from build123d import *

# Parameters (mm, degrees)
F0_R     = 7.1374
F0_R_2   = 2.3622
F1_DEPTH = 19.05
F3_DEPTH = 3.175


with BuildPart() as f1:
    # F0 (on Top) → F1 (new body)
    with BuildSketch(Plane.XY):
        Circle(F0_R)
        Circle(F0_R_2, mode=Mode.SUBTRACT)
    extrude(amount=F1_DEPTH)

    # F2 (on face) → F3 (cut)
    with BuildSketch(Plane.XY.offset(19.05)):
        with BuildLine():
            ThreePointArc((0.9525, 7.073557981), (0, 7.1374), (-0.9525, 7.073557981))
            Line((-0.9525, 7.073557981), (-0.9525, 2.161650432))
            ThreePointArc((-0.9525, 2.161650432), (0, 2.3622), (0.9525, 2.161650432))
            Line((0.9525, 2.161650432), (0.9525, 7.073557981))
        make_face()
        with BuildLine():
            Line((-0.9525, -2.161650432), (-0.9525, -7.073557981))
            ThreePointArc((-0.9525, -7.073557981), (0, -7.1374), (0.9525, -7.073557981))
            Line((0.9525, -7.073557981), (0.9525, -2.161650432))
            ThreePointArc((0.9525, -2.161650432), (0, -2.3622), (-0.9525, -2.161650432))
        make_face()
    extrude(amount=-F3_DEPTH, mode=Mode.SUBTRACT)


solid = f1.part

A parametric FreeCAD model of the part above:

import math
import FreeCAD as App
import Part
import Sketcher
from FreeCAD import Vector
Q = App.Units.Quantity

doc = App.newDocument("Part")
params = doc.addObject("Spreadsheet::Sheet", "Params")
for row, (alias, value) in enumerate([
    ("sketch1_diameter", "0.562 in"),
    ("sketch1_diameter2", "0.186 in"),
    ("pad1_length", "0.75 in"),
    ("sketch2_radius", "0.281 in"),
    ("sketch2_radius2", "0.093 in"),
    ("pocket1_length", "0.125 in"),
], start=1):
    params.set(f"A{row}", alias)
    params.set(f"B{row}", "=" + value)
    params.setAlias(f"B{row}", alias)

body = doc.addObject("PartDesign::Body", "Body")

# Sketch on XY plane
sketch1 = body.newObject("Sketcher::SketchObject", "Sketch")
sketch1.AttachmentSupport = (doc.getObject("XY_Plane"), [""])
sketch1.MapMode = "FlatFace"
sketch1.addGeometry([
    Part.Circle(Vector(0, 0, 0), Vector(0, 0, 1), 7.1),
    Part.Circle(Vector(0, 0, 0), Vector(0, 0, 1), 2.4),
], False)
sketch1.addConstraint([
    Sketcher.Constraint("Coincident", 0, 3, -1, 1),
    Sketcher.Constraint("Coincident", 1, 3, -1, 1),
    Sketcher.Constraint("Diameter", 0, Q("0.562 in")),
    Sketcher.Constraint("Diameter", 1, Q("0.186 in")),
])
sketch1.setExpression("Constraints[2]", "Params.sketch1_diameter")
sketch1.setExpression("Constraints[3]", "Params.sketch1_diameter2")
pad1 = body.newObject("PartDesign::Pad", "Pad")
pad1.Profile = sketch1
pad1.setExpression("Length", "Params.pad1_length")

# Sketch on XY plane
sketch2 = body.newObject("Sketcher::SketchObject", "Sketch001")
sketch2.AttachmentSupport = (doc.getObject("XY_Plane"), [""])
sketch2.MapMode = "FlatFace"
sketch2.AttachmentOffset = App.Placement(Vector(0, 0, 0.75 * 25.4), App.Rotation())
sketch2.addGeometry([
    Part.ArcOfCircle(Part.Circle(Vector(0, 0, 0), Vector(0, 0, 1), 7.1), math.radians(82.33), math.radians(97.67)),  # 0
    Part.LineSegment(Vector(-1, 7.1, 0), Vector(-1, 2.2, 0)),  # 1
    Part.ArcOfCircle(Part.Circle(Vector(0, 0, 0), Vector(0, 0, 1), 2.4), math.radians(66), math.radians(114)),  # 2
    Part.LineSegment(Vector(1, 2.2, 0), Vector(1, 7.1, 0)),  # 3
    Part.LineSegment(Vector(-1, -2.2, 0), Vector(-1, -7.1, 0)),  # 4
    Part.ArcOfCircle(Part.Circle(Vector(0, 0, 0), Vector(0, 0, 1), 7.1), math.radians(-97.67), math.radians(-82.33)),  # 5
    Part.LineSegment(Vector(1, -7.1, 0), Vector(1, -2.2, 0)),  # 6
    Part.ArcOfCircle(Part.Circle(Vector(0, 0, 0), Vector(0, 0, 1), 2.4), math.radians(-114), math.radians(-66)),  # 7
], False)
sketch2.addConstraint([
    Sketcher.Constraint("Coincident", 0, 2, 1, 1),
    Sketcher.Constraint("Coincident", 1, 2, 2, 2),
    Sketcher.Constraint("Coincident", 2, 1, 3, 1),
    Sketcher.Constraint("Coincident", 3, 2, 0, 1),
    Sketcher.Constraint("Coincident", 4, 2, 5, 1),
    Sketcher.Constraint("Coincident", 5, 2, 6, 1),
    Sketcher.Constraint("Coincident", 6, 2, 7, 2),
    Sketcher.Constraint("Coincident", 7, 1, 4, 1),
    Sketcher.Constraint("Vertical", 1),
    Sketcher.Constraint("Vertical", 3),
    Sketcher.Constraint("Vertical", 4),
    Sketcher.Constraint("Vertical", 6),
    Sketcher.Constraint("Coincident", 0, 3, -1, 1),
    Sketcher.Constraint("Coincident", 2, 3, -1, 1),
    Sketcher.Constraint("Coincident", 5, 3, -1, 1),
    Sketcher.Constraint("Coincident", 7, 3, -1, 1),
    Sketcher.Constraint("Equal", 0, 5),
    Sketcher.Constraint("Equal", 2, 7),
    Sketcher.Constraint("Horizontal", 1, 2, 2, 1),
    Sketcher.Constraint("Horizontal", 4, 2, 5, 2),
    Sketcher.Constraint("Vertical", 1, 2, 4, 2),
    Sketcher.Constraint("Radius", 0, Q("0.281 in")),
    Sketcher.Constraint("Radius", 2, Q("0.093 in")),
    Sketcher.Constraint("DistanceX", 1, 2, 2, 1, Q("0.075 in")),
])
sketch2.setExpression("Constraints[21]", "Params.sketch2_radius")
sketch2.setExpression("Constraints[22]", "Params.sketch2_radius2")
pocket1 = body.newObject("PartDesign::Pocket", "Pocket")
pocket1.Profile = sketch2
pocket1.setExpression("Length", "Params.pocket1_length")

doc.recompute()
